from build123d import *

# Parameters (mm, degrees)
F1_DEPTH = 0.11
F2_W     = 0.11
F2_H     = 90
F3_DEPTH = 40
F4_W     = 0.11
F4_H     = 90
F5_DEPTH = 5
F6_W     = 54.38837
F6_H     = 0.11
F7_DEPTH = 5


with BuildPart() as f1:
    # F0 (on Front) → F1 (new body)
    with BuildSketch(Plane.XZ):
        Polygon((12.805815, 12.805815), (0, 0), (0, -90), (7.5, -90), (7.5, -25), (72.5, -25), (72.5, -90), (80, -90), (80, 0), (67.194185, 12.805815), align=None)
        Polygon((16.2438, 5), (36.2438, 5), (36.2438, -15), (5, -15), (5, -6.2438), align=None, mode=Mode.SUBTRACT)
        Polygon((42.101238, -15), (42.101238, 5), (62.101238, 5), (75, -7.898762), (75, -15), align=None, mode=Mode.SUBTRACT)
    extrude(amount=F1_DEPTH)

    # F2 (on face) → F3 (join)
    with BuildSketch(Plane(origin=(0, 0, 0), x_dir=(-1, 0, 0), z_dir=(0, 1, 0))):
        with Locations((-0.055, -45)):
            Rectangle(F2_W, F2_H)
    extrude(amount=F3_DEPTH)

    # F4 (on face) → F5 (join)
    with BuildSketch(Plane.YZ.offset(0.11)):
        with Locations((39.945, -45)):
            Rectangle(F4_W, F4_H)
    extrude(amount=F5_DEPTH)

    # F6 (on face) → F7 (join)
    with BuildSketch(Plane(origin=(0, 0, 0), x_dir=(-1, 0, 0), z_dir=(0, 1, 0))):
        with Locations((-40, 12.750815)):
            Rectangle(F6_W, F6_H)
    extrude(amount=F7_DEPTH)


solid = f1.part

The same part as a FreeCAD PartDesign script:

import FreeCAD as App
import Part
import Sketcher

V = App.Vector

doc = App.newDocument("Part")
body = doc.addObject("PartDesign::Body", "Body")

# Sketch on XZ plane
sketch1 = doc.addObject("Sketcher::SketchObject", "Sketch")
body.addObject(sketch1)
sketch1.AttachmentSupport = (doc.XZ_Plane, [""])
sketch1.MapMode = "FlatFace"
sketch1.addGeometry(Part.LineSegment(V(13, 13, 0), V(0, 0, 0)), False)
sketch1.addGeometry(Part.LineSegment(V(0, 0, 0), V(0, -90, 0)), False)
sketch1.addGeometry(Part.LineSegment(V(0, -90, 0), V(8, -90, 0)), False)
sketch1.addGeometry(Part.LineSegment(V(8, -90, 0), V(8, -25, 0)), False)
sketch1.addGeometry(Part.LineSegment(V(8, -25, 0), V(72, -25, 0)), False)
sketch1.addGeometry(Part.LineSegment(V(72, -25, 0), V(72, -90, 0)), False)
sketch1.addGeometry(Part.LineSegment(V(72, -90, 0), V(80, -90, 0)), False)
sketch1.addGeometry(Part.LineSegment(V(80, -90, 0), V(80, 0, 0)), False)
sketch1.addGeometry(Part.LineSegment(V(80, 0, 0), V(67, 13, 0)), False)
sketch1.addGeometry(Part.LineSegment(V(67, 13, 0), V(13, 13, 0)), False)
sketch1.addGeometry(Part.LineSegment(V(5, -6, 0), V(16, 5, 0)), False)
sketch1.addGeometry(Part.LineSegment(V(16, 5, 0), V(36, 5, 0)), False)
sketch1.addGeometry(Part.LineSegment(V(36, 5, 0), V(36, -15, 0)), False)
sketch1.addGeometry(Part.LineSegment(V(36, -15, 0), V(5, -15, 0)), False)
sketch1.addGeometry(Part.LineSegment(V(5, -15, 0), V(5, -6, 0)), False)
sketch1.addGeometry(Part.LineSegment(V(75, -15, 0), V(42, -15, 0)), False)
sketch1.addGeometry(Part.LineSegment(V(42, -15, 0), V(42, 5, 0)), False)
sketch1.addGeometry(Part.LineSegment(V(42, 5, 0), V(62, 5, 0)), False)
sketch1.addGeometry(Part.LineSegment(V(62, 5, 0), V(75, -8, 0)), False)
sketch1.addGeometry(Part.LineSegment(V(75, -8, 0), V(75, -15, 0)), False)
sketch1.addConstraint(Sketcher.Constraint("Coincident", 0, 2, 1, 1))
sketch1.addConstraint(Sketcher.Constraint("Coincident", 1, 2, 2, 1))
sketch1.addConstraint(Sketcher.Constraint("Coincident", 2, 2, 3, 1))
sketch1.addConstraint(Sketcher.Constraint("Coincident", 3, 2, 4, 1))
sketch1.addConstraint(Sketcher.Constraint("Coincident", 4, 2, 5, 1))
sketch1.addConstraint(Sketcher.Constraint("Coincident", 5, 2, 6, 1))
sketch1.addConstraint(Sketcher.Constraint("Coincident", 6, 2, 7, 1))
sketch1.addConstraint(Sketcher.Constraint("Coincident", 7, 2, 8, 1))
sketch1.addConstraint(Sketcher.Constraint("Coincident", 8, 2, 9, 1))
sketch1.addConstraint(Sketcher.Constraint("Coincident", 9, 2, 0, 1))
sketch1.addConstraint(Sketcher.Constraint("Coincident", 10, 2, 11, 1))
sketch1.addConstraint(Sketcher.Constraint("Coincident", 11, 2, 12, 1))
sketch1.addConstraint(Sketcher.Constraint("Coincident", 12, 2, 13, 1))
sketch1.addConstraint(Sketcher.Constraint("Coincident", 13, 2, 14, 1))
sketch1.addConstraint(Sketcher.Constraint("Coincident", 14, 2, 10, 1))
sketch1.addConstraint(Sketcher.Constraint("Coincident", 15, 2, 16, 1))
sketch1.addConstraint(Sketcher.Constraint("Coincident", 16, 2, 17, 1))
sketch1.addConstraint(Sketcher.Constraint("Coincident", 17, 2, 18, 1))
sketch1.addConstraint(Sketcher.Constraint("Coincident", 18, 2, 19, 1))
sketch1.addConstraint(Sketcher.Constraint("Coincident", 19, 2, 15, 1))
sketch1.addConstraint(Sketcher.Constraint("Vertical", 1))
sketch1.addConstraint(Sketcher.Constraint("Horizontal", 2))
sketch1.addConstraint(Sketcher.Constraint("Vertical", 3))
sketch1.addConstraint(Sketcher.Constraint("Horizontal", 4))
sketch1.addConstraint(Sketcher.Constraint("Vertical", 5))
sketch1.addConstraint(Sketcher.Constraint("Horizontal", 6))
sketch1.addConstraint(Sketcher.Constraint("Vertical", 7))
sketch1.addConstraint(Sketcher.Constraint("Horizontal", 9))
sketch1.addConstraint(Sketcher.Constraint("Horizontal", 11))
sketch1.addConstraint(Sketcher.Constraint("Vertical", 12))
sketch1.addConstraint(Sketcher.Constraint("Horizontal", 13))
sketch1.addConstraint(Sketcher.Constraint("Vertical", 14))
sketch1.addConstraint(Sketcher.Constraint("Horizontal", 15))
sketch1.addConstraint(Sketcher.Constraint("Vertical", 16))
sketch1.addConstraint(Sketcher.Constraint("Horizontal", 17))
sketch1.addConstraint(Sketcher.Constraint("Vertical", 19))
sketch1.addConstraint(Sketcher.Constraint("Coincident", 0, 2, -1, 1))
sketch1.addConstraint(Sketcher.Constraint("PointOnObject", 7, 2, -1))
sketch1.addConstraint(Sketcher.Constraint("Perpendicular", 0, 8))
sketch1.addConstraint(Sketcher.Constraint("Perpendicular", 8, 10))
sketch1.addConstraint(Sketcher.Constraint("Perpendicular", 10, 18))
sketch1.addConstraint(Sketcher.Constraint("Horizontal", 2, 2, 5, 2))
sketch1.addConstraint(Sketcher.Constraint("Horizontal", 13, 2, 15, 2))
sketch1.addConstraint(Sketcher.Constraint("Horizontal", 11, 2, 16, 2))
sketch1.addConstraint(Sketcher.Constraint("Equal", 2, 6))
sketch1.addConstraint(Sketcher.Constraint("Equal", 11, 17))
sketch1.addConstraint(Sketcher.Constraint("Equal", 4, 3))
sketch1.addConstraint(Sketcher.Constraint("Equal", 17, 12))
sketch1.addConstraint(Sketcher.Constraint("Equal", 0, 8))
sketch1.addConstraint(Sketcher.Constraint("DistanceX", 4, 1, 4, 2, 65.0))
sketch1.addConstraint(Sketcher.Constraint("DistanceX", 11, 1, 11, 2, 20.0))
sketch1.addConstraint(Sketcher.Constraint("DistanceY", 1, 2, 1, 1, 90.0))
sketch1.addConstraint(Sketcher.Constraint("DistanceX", 2, 1, 2, 2, 7.5))
sketch1.addConstraint(Sketcher.Constraint("DistanceY", -1, 1, 10, 2, 5.0))
sketch1.addConstraint(Sketcher.Constraint("DistanceX", -1, 1, 13, 2, 5.0))
sketch1.addConstraint(Sketcher.Constraint("DistanceX", -1, 1, 18, 2, 75.0))
sketch1.addConstraint(Sketcher.Constraint("DistanceX", 13, 2, 13, 1, 31.2438))
sketch1.addConstraint(Sketcher.Constraint("DistanceX", 9, 2, 9, 1, 54.38837))
sketch1.addConstraint(Sketcher.Constraint("DistanceX", 15, 2, 15, 1, 32.898762))
pad1 = doc.addObject("PartDesign::Pad", "Pad")
body.addObject(pad1)
pad1.Profile = sketch1
pad1.Length = 0.11

# Sketch on XZ plane
sketch2 = doc.addObject("Sketcher::SketchObject", "Sketch001")
body.addObject(sketch2)
sketch2.AttachmentSupport = (doc.XZ_Plane, [""])
sketch2.MapMode = "FlatFace"
sketch2.addGeometry(Part.LineSegment(V(0.11, 0, 0), V(0.11, -90, 0)), False)
sketch2.addGeometry(Part.LineSegment(V(0.11, -90, 0), V(0, -90, 0)), False)
sketch2.addGeometry(Part.LineSegment(V(0, -90, 0), V(0, 0, 0)), False)
sketch2.addGeometry(Part.LineSegment(V(0, 0, 0), V(0.11, 0, 0)), False)
sketch2.addConstraint(Sketcher.Constraint("Coincident", 0, 2, 1, 1))
sketch2.addConstraint(Sketcher.Constraint("Coincident", 1, 2, 2, 1))
sketch2.addConstraint(Sketcher.Constraint("Coincident", 2, 2, 3, 1))
sketch2.addConstraint(Sketcher.Constraint("Coincident", 3, 2, 0, 1))
sketch2.addConstraint(Sketcher.Constraint("Vertical", 0))
sketch2.addConstraint(Sketcher.Constraint("Horizontal", 1))
sketch2.addConstraint(Sketcher.Constraint("Vertical", 2))
sketch2.addConstraint(Sketcher.Constraint("Horizontal", 3))
sketch2.addConstraint(Sketcher.Constraint("Coincident", 2, 2, -1, 1))
sketch2.addConstraint(Sketcher.Constraint("DistanceY", 0, 2, 0, 1, 90.0))
sketch2.addConstraint(Sketcher.Constraint("DistanceX", 1, 2, 1, 1, 0.11))
pad2 = doc.addObject("PartDesign::Pad", "Pad001")
body.addObject(pad2)
pad2.Profile = sketch2
pad2.Length = 40
pad2.Reversed = True

# Sketch on YZ plane
sketch3 = doc.addObject("Sketcher::SketchObject", "Sketch002")
body.addObject(sketch3)
sketch3.AttachmentSupport = (doc.YZ_Plane, [""])
sketch3.MapMode = "FlatFace"
sketch3.AttachmentOffset = App.Placement(V(0, 0, 0.11), App.Rotation())
sketch3.addGeometry(Part.LineSegment(V(39.89, 0, 0), V(39.89, -90, 0)), False)
sketch3.addGeometry(Part.LineSegment(V(39.89, -90, 0), V(40, -90, 0)), False)
sketch3.addGeometry(Part.LineSegment(V(40, -90, 0), V(40, 0, 0)), False)
sketch3.addGeometry(Part.LineSegment(V(40, 0, 0), V(39.89, 0, 0)), False)
sketch3.addConstraint(Sketcher.Constraint("Coincident", 0, 2, 1, 1))
sketch3.addConstraint(Sketcher.Constraint("Coincident", 1, 2, 2, 1))
sketch3.addConstraint(Sketcher.Constraint("Coincident", 2, 2, 3, 1))
sketch3.addConstraint(Sketcher.Constraint("Coincident", 3, 2, 0, 1))
sketch3.addConstraint(Sketcher.Constraint("Vertical", 0))
sketch3.addConstraint(Sketcher.Constraint("Horizontal", 1))
sketch3.addConstraint(Sketcher.Constraint("Vertical", 2))
sketch3.addConstraint(Sketcher.Constraint("Horizontal", 3))
sketch3.addConstraint(Sketcher.Constraint("PointOnObject", 2, 2, -1))
sketch3.addConstraint(Sketcher.Constraint("DistanceY", 0, 2, 0, 1, 90.0))
sketch3.addConstraint(Sketcher.Constraint("DistanceX", -1, 1, 1, 2, 40.0))
sketch3.addConstraint(Sketcher.Constraint("DistanceX", 1, 1, 1, 2, 0.11))
pad3 = doc.addObject("PartDesign::Pad", "Pad002")
body.addObject(pad3)
pad3.Profile = sketch3
pad3.Length = 5

# Sketch on XZ plane
sketch4 = doc.addObject("Sketcher::SketchObject", "Sketch003")
body.addObject(sketch4)
sketch4.AttachmentSupport = (doc.XZ_Plane, [""])
sketch4.MapMode = "FlatFace"
sketch4.addGeometry(Part.LineSegment(V(67.19, 12.81, 0), V(67.19, 12.7, 0)), False)
sketch4.addGeometry(Part.LineSegment(V(67.19, 12.7, 0), V(12.81, 12.7, 0)), False)
sketch4.addGeometry(Part.LineSegment(V(12.81, 12.7, 0), V(12.81, 12.81, 0)), False)
sketch4.addGeometry(Part.LineSegment(V(12.81, 12.81, 0), V(67.19, 12.81, 0)), False)
sketch4.addConstraint(Sketcher.Constraint("Coincident", 0, 2, 1, 1))
sketch4.addConstraint(Sketcher.Constraint("Coincident", 1, 2, 2, 1))
sketch4.addConstraint(Sketcher.Constraint("Coincident", 2, 2, 3, 1))
sketch4.addConstraint(Sketcher.Constraint("Coincident", 3, 2, 0, 1))
sketch4.addConstraint(Sketcher.Constraint("Vertical", 0))
sketch4.addConstraint(Sketcher.Constraint("Horizontal", 1))
sketch4.addConstraint(Sketcher.Constraint("Vertical", 2))
sketch4.addConstraint(Sketcher.Constraint("Horizontal", 3))
sketch4.addConstraint(Sketcher.Constraint("DistanceY", 0, 2, 0, 1, 0.11))
sketch4.addConstraint(Sketcher.Constraint("DistanceX", 1, 2, 1, 1, 54.38837))
sketch4.addConstraint(Sketcher.Constraint("DistanceX", -1, 1, 0, 2, 67.194185))
sketch4.addConstraint(Sketcher.Constraint("DistanceY", -1, 1, 0, 2, 12.695815))
pad4 = doc.addObject("PartDesign::Pad", "Pad003")
body.addObject(pad4)
pad4.Profile = sketch4
pad4.Length = 5
pad4.Reversed = True

doc.recompute()
